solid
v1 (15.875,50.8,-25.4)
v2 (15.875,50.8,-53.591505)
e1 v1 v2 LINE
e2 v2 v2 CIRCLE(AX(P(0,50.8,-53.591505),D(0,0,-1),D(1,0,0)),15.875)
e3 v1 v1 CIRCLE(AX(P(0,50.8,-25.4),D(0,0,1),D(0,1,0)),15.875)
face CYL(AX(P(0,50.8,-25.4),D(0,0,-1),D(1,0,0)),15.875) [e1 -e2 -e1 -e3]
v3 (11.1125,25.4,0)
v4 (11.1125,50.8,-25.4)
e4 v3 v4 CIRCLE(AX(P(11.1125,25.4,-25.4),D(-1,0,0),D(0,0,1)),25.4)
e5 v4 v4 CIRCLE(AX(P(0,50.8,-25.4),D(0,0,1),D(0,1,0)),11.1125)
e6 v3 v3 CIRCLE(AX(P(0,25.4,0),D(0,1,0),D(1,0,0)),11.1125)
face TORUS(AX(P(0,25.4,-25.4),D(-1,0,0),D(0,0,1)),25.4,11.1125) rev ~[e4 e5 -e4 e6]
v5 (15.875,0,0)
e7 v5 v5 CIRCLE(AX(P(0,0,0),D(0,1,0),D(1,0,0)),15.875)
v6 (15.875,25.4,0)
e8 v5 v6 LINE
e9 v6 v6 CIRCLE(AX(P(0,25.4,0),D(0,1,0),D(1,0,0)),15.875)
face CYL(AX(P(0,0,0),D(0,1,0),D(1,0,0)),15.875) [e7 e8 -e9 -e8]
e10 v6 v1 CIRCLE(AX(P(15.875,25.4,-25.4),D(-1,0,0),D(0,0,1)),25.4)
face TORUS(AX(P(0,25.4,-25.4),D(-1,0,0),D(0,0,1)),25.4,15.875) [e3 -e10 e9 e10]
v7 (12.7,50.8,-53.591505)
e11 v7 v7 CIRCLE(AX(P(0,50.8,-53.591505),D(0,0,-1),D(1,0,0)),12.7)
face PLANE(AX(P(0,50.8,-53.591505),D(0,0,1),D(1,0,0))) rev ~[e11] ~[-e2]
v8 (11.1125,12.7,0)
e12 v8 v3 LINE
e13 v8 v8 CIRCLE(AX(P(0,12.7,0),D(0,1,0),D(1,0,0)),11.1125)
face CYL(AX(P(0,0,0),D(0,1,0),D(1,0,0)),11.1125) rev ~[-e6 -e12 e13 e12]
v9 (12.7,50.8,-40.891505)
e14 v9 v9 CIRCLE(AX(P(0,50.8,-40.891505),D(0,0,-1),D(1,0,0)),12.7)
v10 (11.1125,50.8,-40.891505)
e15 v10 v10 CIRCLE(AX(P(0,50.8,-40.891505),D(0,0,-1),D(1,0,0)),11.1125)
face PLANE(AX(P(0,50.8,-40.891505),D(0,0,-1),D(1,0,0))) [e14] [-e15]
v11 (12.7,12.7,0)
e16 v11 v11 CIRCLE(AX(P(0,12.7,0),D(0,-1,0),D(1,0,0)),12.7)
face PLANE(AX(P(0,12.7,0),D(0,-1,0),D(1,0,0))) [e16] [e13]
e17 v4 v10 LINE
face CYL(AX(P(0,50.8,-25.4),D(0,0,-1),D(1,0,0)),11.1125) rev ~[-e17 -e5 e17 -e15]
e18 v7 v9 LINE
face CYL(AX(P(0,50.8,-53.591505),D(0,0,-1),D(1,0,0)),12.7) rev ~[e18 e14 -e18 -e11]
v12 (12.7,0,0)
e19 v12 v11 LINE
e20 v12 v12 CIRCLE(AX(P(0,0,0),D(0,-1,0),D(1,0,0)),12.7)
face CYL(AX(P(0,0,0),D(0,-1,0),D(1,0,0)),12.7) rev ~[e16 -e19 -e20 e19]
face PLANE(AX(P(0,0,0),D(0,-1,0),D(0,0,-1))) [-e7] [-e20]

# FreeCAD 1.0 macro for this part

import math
import FreeCAD as App
import Part
import Sketcher
Q = App.Units.Quantity

doc = App.newDocument("Part")
body = doc.addObject("PartDesign::Body", "Body")

sketch1 = body.newObject("Sketcher::SketchObject", "Sketch")
sketch1.AttachmentSupport = (doc.getObject("XZ_Plane"), [""])
sketch1.MapMode = "FlatFace"
sketch1.addGeometry([
    Part.Circle(App.Vector(0, 0, 0), App.Vector(0, 0, 1), 15.875),
    Part.Circle(App.Vector(0, 0, 0), App.Vector(0, 0, 1), 11.1125),
], False)
sketch1.addConstraint([
    Sketcher.Constraint("Coincident", 0, 3, -1, 1),
    Sketcher.Constraint("Coincident", 1, 3, -1, 1),
    Sketcher.Constraint("Diameter", 0, Q("1.25 in")),
    Sketcher.Constraint("Diameter", 1, Q("0.875 in")),
])

sketch2 = body.newObject("Sketcher::SketchObject", "Sketch001")
sketch2.AttachmentSupport = (doc.getObject("YZ_Plane"), [""])
sketch2.MapMode = "FlatFace"
sketch2.addGeometry([
    Part.LineSegment(App.Vector(0, 0, 0), App.Vector(25.4, 0, 0)),
    Part.ArcOfCircle(Part.Circle(App.Vector(25.4, -25.4, 0), App.Vector(0, 0, 1), 25.4), math.radians(0), math.radians(90)),
    Part.LineSegment(App.Vector(50.8, -25.4, 0), App.Vector(50.8, -53.591505, 0)),
], False)
sketch2.addConstraint([
    Sketcher.Constraint("Tangent", 0, 2, 1, 2),
    Sketcher.Constraint("Tangent", 1, 1, 2, 1),
    Sketcher.Constraint("Horizontal", 0),
    Sketcher.Constraint("Vertical", 2),
    Sketcher.Constraint("Coincident", 0, 1, -1, 1),
    Sketcher.Constraint("Radius", 1, Q("1 in")),
    Sketcher.Constraint("DistanceX", 0, 1, 0, 2, Q("1 in")),
    Sketcher.Constraint("DistanceY", 2, 2, 2, 1, 28.191505),
])
doc.recompute()

additivepipe = body.newObject("PartDesign::AdditivePipe", "AdditivePipe")
additivepipe.Profile = sketch1
additivepipe.Spine = (sketch2, ["Edge1", "Edge2", "Edge3"])

sketch3 = body.newObject("Sketcher::SketchObject", "Sketch002")
sketch3.AttachmentSupport = (doc.getObject("XZ_Plane"), [""])
sketch3.MapMode = "FlatFace"
sketch3.addGeometry(Part.Circle(App.Vector(0, 0, 0), App.Vector(0, 0, 1), 12.7), False)
sketch3.addConstraint([
    Sketcher.Constraint("Coincident", 0, 3, -1, 1),
    Sketcher.Constraint("Diameter", 0, Q("1 in")),
])
pocket1 = body.newObject("PartDesign::Pocket", "Pocket")
pocket1.Profile = sketch3
pocket1.Length = Q("0.5 in")

sketch4 = body.newObject("Sketcher::SketchObject", "Sketch003")
sketch4.AttachmentSupport = (doc.getObject("XY_Plane"), [""])
sketch4.MapMode = "FlatFace"
sketch4.AttachmentOffset = App.Placement(App.Vector(0, 0, -53.591505), App.Rotation())
sketch4.addGeometry(Part.Circle(App.Vector(0, 50.8, 0), App.Vector(0, 0, 1), 12.7), False)
sketch4.addConstraint([
    Sketcher.Constraint("PointOnObject", 0, 3, -2),
    Sketcher.Constraint("Diameter", 0, Q("1 in")),
    Sketcher.Constraint("DistanceY", -1, 1, 0, 3, Q("2 in")),
])
pocket2 = body.newObject("PartDesign::Pocket", "Pocket001")
pocket2.Profile = sketch4
pocket2.Length = Q("0.5 in")
pocket2.Reversed = True

doc.recompute()
